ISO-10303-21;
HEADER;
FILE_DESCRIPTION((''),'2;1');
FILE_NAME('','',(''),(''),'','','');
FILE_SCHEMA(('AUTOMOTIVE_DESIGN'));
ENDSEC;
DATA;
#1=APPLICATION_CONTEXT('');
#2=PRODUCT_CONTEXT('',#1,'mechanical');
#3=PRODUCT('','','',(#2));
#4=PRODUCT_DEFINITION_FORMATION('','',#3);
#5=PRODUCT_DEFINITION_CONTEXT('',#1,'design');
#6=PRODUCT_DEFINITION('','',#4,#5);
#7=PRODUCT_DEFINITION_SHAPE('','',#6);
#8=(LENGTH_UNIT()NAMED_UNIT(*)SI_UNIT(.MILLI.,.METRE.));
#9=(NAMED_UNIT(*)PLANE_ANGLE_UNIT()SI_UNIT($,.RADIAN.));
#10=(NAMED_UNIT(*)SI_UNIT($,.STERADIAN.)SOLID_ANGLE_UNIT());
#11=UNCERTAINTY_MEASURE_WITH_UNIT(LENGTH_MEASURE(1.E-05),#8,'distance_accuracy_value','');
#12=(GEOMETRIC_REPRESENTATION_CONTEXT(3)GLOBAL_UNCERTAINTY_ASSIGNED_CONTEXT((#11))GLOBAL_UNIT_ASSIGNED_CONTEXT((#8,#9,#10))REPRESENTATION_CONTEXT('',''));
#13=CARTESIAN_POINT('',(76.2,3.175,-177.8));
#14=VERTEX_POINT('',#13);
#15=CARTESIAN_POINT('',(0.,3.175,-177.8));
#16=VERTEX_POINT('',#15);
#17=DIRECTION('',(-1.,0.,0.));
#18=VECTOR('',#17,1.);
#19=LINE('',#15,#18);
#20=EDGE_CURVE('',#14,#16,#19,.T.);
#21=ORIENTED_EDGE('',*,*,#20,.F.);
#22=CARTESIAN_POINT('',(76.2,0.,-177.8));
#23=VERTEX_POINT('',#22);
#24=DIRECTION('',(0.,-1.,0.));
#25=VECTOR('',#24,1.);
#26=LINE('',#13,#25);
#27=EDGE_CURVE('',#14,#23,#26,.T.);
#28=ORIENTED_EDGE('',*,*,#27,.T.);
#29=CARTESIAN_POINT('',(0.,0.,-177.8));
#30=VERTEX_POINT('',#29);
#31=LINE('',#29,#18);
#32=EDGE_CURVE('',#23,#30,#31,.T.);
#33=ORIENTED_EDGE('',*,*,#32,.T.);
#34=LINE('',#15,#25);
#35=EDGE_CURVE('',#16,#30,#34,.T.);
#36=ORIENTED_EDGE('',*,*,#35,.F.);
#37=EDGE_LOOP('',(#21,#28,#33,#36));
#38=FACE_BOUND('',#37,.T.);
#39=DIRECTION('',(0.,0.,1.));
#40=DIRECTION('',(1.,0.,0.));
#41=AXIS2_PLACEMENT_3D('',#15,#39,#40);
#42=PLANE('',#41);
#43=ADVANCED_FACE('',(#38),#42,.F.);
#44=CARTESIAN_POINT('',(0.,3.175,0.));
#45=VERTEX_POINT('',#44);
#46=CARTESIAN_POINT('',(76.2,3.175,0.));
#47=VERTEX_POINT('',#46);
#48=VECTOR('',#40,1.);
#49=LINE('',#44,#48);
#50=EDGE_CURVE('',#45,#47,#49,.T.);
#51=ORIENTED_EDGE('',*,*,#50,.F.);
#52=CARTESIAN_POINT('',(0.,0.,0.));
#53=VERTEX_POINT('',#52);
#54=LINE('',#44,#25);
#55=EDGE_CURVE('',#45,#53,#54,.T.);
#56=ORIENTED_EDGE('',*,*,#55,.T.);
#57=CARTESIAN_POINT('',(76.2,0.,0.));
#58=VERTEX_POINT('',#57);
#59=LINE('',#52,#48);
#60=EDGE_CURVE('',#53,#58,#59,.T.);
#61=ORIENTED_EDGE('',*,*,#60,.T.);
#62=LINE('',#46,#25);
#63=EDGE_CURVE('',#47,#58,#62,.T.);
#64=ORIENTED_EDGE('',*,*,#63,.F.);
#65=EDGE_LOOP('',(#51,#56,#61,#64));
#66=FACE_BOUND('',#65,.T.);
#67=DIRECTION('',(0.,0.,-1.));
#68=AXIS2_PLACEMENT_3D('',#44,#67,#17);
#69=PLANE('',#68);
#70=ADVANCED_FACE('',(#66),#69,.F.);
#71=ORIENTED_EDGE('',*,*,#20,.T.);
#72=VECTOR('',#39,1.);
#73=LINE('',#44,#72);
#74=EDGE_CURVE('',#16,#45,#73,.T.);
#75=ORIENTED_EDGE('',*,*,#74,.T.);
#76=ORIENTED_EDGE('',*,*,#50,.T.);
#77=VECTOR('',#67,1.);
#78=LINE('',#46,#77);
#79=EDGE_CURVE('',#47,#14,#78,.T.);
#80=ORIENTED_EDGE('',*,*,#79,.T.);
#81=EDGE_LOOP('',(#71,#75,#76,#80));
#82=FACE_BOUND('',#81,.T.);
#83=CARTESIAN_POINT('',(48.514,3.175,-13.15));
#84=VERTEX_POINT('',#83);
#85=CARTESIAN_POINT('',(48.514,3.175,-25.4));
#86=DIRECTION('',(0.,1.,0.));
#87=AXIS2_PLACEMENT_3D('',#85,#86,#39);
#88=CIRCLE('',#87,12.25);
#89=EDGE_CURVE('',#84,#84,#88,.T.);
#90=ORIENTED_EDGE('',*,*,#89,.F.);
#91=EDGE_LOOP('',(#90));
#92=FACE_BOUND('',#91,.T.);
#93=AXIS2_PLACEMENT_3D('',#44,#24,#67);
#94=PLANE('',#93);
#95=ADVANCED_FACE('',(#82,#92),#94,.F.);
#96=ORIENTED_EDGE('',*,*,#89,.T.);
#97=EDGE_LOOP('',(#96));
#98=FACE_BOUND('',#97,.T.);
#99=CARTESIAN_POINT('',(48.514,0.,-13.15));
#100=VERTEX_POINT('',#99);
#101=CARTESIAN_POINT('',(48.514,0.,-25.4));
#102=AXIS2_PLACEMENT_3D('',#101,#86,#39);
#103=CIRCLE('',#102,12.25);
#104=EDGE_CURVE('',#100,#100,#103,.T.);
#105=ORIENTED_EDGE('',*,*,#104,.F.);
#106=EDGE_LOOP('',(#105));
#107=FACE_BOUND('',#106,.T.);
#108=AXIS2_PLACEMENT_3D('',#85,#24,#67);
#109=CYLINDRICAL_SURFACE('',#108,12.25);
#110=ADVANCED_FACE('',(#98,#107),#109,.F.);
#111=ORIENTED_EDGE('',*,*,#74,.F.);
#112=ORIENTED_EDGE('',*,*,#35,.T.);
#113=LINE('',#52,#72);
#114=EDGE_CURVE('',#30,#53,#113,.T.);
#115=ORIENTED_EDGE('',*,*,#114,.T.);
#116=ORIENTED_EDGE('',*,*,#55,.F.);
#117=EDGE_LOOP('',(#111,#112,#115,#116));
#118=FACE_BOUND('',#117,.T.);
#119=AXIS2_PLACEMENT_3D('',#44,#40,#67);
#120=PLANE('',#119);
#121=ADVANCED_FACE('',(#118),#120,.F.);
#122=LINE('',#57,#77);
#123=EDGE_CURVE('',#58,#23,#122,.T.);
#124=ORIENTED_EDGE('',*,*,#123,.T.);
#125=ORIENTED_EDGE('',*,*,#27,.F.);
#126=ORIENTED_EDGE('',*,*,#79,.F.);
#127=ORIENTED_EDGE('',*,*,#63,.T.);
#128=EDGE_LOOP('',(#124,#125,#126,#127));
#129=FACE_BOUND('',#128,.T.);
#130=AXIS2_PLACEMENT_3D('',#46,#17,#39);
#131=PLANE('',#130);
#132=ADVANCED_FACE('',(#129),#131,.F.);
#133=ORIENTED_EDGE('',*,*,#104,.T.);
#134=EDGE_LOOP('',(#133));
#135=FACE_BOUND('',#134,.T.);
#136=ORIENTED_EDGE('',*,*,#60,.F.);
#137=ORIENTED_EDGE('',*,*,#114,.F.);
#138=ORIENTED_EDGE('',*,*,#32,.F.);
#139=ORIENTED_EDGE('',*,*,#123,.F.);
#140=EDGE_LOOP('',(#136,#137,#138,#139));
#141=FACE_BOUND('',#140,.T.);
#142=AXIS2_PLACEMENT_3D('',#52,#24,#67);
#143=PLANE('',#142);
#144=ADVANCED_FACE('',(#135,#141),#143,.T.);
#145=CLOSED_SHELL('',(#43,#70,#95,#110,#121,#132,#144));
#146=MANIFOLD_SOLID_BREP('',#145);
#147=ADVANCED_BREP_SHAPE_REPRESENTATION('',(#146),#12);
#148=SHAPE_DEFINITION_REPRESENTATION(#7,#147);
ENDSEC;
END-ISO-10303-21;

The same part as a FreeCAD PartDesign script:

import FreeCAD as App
import Part
import Sketcher

V = App.Vector
Q = App.Units.Quantity


def add_polygon(sketch, points):
    """Adds a closed chain of lines whose ends are joined by coincident constraints."""
    first, n = sketch.GeometryCount, len(points)
    for a, b in zip(points, points[1:] + points[:1]):
        sketch.addGeometry(Part.LineSegment(App.Vector(*a, 0), App.Vector(*b, 0)), False)
    for i in range(n):
        sketch.addConstraint(Sketcher.Constraint("Coincident", first + i, 2, first + (i + 1) % n, 1))

doc = App.newDocument("Part")
body = doc.addObject("PartDesign::Body", "Body")

# Sketch on XZ plane
sketch1 = body.newObject("Sketcher::SketchObject", "Sketch")
sketch1.AttachmentSupport = (doc.getObject("XZ_Plane"), [""])
sketch1.MapMode = "FlatFace"
add_polygon(sketch1, [(0, -178), (0, 0), (76, 0), (76, -178)])  # lines 0-3
sketch1.addGeometry(Part.Circle(V(49, -25, 0), V(0, 0, 1), 12), False)  # 4
sketch1.addConstraint([
    Sketcher.Constraint("Vertical", 0),
    Sketcher.Constraint("Horizontal", 1),
    Sketcher.Constraint("Vertical", 2),
    Sketcher.Constraint("Horizontal", 3),
    Sketcher.Constraint("Coincident", 0, 2, -1, 1),
    Sketcher.Constraint("DistanceX", 1, 1, 1, 2, Q("3 in")),
    Sketcher.Constraint("DistanceY", 0, 1, 0, 2, Q("7 in")),
    Sketcher.Constraint("DistanceY", 4, 3, -1, 1, Q("1 in")),
    Sketcher.Constraint("Diameter", 4, 24.5),
    Sketcher.Constraint("DistanceX", -1, 1, 4, 3, Q("1.91 in")),
])
pad1 = body.newObject("PartDesign::Pad", "Pad")
pad1.Profile = sketch1
pad1.Length = Q("0.125 in")
pad1.Reversed = True

doc.recompute()
